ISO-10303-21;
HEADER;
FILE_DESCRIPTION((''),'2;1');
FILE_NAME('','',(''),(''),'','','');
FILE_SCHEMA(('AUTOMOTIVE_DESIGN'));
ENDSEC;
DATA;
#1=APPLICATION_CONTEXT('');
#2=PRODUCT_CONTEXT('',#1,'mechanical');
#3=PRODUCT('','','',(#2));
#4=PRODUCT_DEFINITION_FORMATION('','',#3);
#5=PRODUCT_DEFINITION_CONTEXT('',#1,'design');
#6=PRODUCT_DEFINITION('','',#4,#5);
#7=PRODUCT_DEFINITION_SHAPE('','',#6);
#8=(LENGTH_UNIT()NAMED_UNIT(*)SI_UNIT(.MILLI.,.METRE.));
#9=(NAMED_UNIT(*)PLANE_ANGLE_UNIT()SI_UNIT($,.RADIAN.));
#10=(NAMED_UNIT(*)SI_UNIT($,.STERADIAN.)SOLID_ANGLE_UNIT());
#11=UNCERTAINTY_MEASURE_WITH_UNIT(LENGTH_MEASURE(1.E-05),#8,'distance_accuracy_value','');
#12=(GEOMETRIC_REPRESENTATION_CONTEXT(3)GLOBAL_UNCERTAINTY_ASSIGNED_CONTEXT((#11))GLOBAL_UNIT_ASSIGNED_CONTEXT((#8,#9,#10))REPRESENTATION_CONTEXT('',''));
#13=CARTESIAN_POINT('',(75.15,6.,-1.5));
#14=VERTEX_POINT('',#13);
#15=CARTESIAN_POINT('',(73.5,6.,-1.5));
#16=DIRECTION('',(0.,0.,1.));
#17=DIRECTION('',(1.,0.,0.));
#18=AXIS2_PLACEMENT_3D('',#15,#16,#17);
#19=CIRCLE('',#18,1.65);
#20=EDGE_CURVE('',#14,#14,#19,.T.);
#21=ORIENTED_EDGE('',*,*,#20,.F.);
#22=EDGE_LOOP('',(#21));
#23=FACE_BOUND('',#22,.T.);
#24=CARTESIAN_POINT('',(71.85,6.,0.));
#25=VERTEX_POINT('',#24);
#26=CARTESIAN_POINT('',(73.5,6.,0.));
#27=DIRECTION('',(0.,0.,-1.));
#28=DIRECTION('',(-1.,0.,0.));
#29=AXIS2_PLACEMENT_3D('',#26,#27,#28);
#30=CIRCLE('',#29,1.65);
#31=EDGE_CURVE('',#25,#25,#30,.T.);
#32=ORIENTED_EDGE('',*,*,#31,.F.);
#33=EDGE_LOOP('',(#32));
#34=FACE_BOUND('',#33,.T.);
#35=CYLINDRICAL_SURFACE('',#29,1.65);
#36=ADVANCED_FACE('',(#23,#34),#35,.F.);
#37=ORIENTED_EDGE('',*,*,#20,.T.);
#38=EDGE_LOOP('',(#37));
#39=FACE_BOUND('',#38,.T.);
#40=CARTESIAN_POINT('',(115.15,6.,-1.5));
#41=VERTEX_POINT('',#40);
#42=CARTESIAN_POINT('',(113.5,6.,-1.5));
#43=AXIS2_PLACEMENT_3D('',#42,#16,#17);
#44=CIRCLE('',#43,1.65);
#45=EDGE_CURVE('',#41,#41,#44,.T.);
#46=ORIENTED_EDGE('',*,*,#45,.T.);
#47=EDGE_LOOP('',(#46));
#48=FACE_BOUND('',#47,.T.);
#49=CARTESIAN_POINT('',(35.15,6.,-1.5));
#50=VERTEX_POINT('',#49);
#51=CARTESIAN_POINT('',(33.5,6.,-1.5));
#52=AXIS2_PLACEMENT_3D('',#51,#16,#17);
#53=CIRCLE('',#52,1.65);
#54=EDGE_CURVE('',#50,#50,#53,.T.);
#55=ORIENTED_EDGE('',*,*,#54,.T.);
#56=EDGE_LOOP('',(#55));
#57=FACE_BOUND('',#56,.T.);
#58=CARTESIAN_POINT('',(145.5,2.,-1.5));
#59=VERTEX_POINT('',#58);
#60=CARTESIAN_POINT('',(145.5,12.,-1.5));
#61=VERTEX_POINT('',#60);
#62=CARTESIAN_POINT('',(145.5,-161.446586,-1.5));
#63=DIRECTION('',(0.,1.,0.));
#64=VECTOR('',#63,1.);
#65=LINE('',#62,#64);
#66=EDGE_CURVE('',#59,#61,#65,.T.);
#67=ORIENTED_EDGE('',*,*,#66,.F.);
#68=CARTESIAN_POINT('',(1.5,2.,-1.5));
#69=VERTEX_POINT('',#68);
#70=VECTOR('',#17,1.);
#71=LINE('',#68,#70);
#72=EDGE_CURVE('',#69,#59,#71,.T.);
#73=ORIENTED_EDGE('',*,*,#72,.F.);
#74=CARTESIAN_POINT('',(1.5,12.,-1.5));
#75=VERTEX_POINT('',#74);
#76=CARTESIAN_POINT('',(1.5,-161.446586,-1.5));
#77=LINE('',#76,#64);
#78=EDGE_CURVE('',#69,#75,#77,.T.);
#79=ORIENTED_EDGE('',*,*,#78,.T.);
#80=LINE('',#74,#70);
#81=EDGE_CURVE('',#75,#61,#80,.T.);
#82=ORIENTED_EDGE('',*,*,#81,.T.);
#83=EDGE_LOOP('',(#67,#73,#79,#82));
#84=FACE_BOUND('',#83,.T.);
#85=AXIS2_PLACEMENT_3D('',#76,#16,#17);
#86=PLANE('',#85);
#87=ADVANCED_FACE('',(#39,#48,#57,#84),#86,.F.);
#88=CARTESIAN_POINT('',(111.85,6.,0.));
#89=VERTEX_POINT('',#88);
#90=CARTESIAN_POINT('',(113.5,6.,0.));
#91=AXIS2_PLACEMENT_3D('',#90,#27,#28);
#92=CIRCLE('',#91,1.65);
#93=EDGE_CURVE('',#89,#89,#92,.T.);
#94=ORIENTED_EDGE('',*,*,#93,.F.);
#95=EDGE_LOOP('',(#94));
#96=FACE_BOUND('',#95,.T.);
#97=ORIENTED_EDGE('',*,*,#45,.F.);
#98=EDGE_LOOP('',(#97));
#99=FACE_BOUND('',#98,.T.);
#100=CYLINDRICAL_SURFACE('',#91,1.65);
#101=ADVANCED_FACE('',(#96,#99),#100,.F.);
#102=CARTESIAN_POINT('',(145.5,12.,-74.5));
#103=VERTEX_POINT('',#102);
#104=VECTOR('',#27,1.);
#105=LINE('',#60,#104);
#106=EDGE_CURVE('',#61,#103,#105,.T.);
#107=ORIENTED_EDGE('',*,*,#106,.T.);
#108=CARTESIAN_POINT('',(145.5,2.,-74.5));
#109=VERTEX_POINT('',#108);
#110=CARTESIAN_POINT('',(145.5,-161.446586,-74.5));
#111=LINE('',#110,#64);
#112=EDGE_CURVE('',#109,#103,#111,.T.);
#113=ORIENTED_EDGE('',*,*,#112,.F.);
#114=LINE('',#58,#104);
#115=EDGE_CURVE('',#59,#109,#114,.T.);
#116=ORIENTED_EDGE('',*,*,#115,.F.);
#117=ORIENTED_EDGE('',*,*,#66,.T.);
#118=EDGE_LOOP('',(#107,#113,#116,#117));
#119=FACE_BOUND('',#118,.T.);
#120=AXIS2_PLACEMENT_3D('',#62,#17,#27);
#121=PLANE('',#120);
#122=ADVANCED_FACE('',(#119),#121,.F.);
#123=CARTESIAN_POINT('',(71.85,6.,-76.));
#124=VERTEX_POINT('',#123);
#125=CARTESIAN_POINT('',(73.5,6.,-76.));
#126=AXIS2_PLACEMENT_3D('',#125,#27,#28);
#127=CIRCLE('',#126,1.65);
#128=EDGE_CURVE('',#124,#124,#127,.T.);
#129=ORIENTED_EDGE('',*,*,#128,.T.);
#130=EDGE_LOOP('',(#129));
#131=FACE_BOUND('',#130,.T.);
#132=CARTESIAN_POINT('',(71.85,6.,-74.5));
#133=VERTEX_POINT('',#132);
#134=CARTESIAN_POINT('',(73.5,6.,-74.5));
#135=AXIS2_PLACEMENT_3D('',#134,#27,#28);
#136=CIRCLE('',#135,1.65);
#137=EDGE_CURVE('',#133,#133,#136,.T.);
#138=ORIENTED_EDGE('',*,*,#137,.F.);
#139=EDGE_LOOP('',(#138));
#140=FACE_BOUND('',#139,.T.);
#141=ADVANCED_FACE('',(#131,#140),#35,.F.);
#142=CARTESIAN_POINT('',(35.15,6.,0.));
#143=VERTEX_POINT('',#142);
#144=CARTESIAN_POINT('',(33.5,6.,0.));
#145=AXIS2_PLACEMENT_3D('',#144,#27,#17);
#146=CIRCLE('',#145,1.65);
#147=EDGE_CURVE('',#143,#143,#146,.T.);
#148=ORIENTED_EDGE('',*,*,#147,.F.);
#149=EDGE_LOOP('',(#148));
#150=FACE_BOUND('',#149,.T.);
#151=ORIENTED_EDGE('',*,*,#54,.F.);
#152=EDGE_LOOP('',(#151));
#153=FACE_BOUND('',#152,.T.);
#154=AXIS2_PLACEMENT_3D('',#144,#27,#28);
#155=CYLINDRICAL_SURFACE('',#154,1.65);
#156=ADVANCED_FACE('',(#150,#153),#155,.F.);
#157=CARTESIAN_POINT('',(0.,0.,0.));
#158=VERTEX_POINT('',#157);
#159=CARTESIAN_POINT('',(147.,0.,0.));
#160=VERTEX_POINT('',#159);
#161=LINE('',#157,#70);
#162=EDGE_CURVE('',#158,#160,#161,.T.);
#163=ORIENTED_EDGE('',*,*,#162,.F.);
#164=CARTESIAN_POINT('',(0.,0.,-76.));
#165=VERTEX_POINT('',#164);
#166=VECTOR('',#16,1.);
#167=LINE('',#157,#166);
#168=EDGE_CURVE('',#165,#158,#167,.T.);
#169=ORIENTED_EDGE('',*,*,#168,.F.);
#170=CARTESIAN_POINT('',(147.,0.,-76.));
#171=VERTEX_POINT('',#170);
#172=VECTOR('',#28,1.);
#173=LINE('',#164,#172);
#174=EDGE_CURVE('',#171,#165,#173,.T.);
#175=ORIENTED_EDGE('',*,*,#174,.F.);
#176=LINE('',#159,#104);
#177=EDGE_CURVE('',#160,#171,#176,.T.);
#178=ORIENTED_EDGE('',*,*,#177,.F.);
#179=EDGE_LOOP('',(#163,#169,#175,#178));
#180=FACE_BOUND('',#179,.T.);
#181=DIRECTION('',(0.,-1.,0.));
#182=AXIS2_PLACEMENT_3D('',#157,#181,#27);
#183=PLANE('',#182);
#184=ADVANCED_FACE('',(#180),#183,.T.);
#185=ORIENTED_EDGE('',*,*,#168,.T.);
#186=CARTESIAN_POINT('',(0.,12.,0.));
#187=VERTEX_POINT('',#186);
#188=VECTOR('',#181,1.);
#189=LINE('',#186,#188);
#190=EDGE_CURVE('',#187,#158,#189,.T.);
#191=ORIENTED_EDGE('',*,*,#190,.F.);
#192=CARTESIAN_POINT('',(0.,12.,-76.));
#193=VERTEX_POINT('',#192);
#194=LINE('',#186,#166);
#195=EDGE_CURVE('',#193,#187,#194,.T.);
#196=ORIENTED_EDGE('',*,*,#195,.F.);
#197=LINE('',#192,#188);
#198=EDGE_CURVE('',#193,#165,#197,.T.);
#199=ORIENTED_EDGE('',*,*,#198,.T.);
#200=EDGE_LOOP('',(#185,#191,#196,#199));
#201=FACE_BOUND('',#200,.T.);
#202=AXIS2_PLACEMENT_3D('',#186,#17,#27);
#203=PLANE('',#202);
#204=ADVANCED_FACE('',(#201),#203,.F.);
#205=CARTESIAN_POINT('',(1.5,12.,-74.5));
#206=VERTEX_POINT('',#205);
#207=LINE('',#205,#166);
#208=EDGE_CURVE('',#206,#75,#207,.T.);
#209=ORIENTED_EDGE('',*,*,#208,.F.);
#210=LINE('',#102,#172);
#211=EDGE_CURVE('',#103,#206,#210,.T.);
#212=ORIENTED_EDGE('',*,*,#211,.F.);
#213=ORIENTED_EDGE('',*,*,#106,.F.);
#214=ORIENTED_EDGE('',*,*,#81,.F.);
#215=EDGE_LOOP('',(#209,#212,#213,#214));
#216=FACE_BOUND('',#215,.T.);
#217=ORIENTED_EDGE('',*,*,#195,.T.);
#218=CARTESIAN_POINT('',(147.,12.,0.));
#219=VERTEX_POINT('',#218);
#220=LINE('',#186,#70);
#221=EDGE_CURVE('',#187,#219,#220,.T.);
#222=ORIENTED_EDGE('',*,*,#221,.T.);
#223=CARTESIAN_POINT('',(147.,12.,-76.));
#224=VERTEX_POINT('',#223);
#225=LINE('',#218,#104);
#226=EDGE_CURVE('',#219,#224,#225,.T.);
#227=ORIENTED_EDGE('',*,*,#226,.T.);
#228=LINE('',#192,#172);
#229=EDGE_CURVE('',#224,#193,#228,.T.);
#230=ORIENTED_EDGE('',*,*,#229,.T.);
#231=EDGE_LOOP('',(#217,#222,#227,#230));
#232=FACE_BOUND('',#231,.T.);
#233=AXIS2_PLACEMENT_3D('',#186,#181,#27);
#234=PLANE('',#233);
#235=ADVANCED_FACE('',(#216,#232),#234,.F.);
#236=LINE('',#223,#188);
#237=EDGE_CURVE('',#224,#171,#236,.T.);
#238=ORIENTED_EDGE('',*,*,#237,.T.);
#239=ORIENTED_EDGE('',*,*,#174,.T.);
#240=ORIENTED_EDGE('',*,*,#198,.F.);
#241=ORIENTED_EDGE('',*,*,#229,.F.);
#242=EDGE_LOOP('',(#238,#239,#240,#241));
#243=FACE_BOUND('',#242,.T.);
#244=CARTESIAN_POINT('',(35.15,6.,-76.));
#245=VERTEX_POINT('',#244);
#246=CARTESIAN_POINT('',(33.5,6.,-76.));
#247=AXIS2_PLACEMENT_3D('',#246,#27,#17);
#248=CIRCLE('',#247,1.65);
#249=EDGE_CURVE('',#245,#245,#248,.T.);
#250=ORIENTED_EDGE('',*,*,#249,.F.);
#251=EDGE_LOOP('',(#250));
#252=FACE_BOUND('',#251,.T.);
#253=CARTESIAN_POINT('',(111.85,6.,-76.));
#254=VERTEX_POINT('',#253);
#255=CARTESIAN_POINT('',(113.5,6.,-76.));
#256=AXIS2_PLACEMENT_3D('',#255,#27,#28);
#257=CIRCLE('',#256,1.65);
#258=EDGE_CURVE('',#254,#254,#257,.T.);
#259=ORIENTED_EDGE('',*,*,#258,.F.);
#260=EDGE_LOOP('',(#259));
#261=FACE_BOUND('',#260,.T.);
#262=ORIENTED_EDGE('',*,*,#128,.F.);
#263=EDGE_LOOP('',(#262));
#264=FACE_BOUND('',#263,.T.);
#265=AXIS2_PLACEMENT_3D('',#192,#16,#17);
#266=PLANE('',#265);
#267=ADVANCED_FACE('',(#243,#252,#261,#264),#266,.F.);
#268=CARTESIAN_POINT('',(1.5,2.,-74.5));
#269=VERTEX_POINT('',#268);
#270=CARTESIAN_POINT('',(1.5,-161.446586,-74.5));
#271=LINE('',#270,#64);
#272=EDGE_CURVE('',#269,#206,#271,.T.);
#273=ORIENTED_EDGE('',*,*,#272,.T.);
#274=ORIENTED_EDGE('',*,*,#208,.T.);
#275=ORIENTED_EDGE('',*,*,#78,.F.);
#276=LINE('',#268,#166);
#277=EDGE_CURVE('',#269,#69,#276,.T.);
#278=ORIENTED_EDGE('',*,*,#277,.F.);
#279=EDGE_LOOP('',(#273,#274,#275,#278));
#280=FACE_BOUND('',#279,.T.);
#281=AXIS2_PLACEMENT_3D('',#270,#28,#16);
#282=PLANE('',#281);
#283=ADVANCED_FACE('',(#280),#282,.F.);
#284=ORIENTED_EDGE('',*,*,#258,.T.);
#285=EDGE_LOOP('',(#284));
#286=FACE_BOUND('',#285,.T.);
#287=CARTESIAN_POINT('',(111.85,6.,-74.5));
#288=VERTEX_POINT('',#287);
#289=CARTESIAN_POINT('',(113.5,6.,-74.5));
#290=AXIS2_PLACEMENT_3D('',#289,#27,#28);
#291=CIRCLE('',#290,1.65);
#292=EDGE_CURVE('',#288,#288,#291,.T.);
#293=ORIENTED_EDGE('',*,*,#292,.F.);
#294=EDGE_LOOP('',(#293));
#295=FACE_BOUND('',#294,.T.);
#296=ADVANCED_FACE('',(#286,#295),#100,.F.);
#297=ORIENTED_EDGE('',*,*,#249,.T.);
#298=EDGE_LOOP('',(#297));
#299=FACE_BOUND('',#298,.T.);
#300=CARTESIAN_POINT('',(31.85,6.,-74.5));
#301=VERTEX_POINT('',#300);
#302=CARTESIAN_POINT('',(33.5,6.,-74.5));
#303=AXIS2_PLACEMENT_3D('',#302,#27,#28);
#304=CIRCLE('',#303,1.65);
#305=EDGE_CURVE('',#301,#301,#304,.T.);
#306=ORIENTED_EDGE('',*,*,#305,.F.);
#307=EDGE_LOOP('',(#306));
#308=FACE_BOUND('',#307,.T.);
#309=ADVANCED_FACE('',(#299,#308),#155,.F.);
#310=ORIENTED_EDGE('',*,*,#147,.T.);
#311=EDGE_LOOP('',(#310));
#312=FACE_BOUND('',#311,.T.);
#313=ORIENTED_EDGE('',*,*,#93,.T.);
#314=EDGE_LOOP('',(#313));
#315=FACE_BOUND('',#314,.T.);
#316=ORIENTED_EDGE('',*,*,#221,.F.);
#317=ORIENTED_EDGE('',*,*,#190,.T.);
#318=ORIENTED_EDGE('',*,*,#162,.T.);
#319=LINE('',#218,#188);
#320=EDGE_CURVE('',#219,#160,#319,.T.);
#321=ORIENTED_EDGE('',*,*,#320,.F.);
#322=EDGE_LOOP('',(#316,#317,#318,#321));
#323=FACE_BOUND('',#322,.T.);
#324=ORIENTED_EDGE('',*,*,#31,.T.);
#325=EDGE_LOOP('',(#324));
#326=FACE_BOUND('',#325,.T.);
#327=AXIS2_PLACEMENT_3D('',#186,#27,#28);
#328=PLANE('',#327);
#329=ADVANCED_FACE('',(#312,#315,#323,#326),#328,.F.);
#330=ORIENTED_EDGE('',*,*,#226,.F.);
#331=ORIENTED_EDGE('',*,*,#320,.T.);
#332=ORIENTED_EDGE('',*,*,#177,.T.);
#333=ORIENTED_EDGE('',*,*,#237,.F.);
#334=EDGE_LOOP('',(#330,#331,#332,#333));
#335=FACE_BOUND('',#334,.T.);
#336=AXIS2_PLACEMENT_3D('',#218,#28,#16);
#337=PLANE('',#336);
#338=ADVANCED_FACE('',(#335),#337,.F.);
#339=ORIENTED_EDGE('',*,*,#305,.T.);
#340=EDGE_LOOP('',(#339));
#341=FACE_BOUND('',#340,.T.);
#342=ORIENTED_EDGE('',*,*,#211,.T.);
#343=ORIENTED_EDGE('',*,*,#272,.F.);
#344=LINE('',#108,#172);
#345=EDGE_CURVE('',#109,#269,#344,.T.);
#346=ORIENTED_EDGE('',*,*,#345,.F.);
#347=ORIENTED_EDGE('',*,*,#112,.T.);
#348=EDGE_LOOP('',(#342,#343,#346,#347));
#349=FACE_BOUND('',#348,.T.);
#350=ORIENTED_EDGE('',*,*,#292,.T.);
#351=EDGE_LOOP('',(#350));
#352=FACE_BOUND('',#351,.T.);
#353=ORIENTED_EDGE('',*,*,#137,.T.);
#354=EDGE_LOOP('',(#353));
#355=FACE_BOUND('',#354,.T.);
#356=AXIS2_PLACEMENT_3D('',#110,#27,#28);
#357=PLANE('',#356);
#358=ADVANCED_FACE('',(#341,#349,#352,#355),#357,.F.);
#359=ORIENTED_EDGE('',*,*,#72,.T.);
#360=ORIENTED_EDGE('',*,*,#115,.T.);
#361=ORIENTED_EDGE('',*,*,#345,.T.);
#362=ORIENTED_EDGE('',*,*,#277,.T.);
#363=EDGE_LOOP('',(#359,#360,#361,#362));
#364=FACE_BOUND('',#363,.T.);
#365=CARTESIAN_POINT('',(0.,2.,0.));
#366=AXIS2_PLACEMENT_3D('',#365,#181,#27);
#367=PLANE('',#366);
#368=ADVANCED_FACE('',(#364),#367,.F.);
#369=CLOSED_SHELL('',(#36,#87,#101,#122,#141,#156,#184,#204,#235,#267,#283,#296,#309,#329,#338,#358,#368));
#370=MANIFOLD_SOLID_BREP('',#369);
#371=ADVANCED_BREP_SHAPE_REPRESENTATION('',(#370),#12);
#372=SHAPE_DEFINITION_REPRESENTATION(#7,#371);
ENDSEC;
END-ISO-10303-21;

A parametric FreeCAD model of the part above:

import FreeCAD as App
import Part
import Sketcher
Q = App.Units.Quantity


def add_polygon(sketch, points):
    """Adds a closed chain of lines whose ends are joined by coincident constraints."""
    first, n = sketch.GeometryCount, len(points)
    for a, b in zip(points, points[1:] + points[:1]):
        sketch.addGeometry(Part.LineSegment(App.Vector(*a, 0), App.Vector(*b, 0)), False)
    for i in range(n):
        sketch.addConstraint(Sketcher.Constraint("Coincident", first + i, 2, first + (i + 1) % n, 1))

doc = App.newDocument("Part")
body = doc.addObject("PartDesign::Body", "Body")

sketch1 = doc.addObject("Sketcher::SketchObject", "Sketch")
body.addObject(sketch1)
sketch1.AttachmentSupport = (doc.XZ_Plane, [""])
sketch1.MapMode = "FlatFace"
add_polygon(sketch1, [(0, -76), (0, 0), (147, 0), (147, -76)])
sketch1.addConstraint(Sketcher.Constraint("Vertical", 0))
sketch1.addConstraint(Sketcher.Constraint("Horizontal", 1))
sketch1.addConstraint(Sketcher.Constraint("Vertical", 2))
sketch1.addConstraint(Sketcher.Constraint("Horizontal", 3))
sketch1.addConstraint(Sketcher.Constraint("Coincident", 0, 2, -1, 1))
sketch1.addConstraint(Sketcher.Constraint("DistanceX", 1, 1, 1, 2, Q("147 mm")))
sketch1.addConstraint(Sketcher.Constraint("DistanceY", 0, 1, 0, 2, Q("76 mm")))
pad1 = doc.addObject("PartDesign::Pad", "Pad")
body.addObject(pad1)
pad1.Profile = sketch1
pad1.Length = 12
pad1.Reversed = True

sketch2 = doc.addObject("Sketcher::SketchObject", "Sketch001")
body.addObject(sketch2)
sketch2.AttachmentSupport = (doc.XZ_Plane, [""])
sketch2.MapMode = "FlatFace"
sketch2.AttachmentOffset = App.Placement(App.Vector(0, 0, -12), App.Rotation())
add_polygon(sketch2, [(1.5, -74.5), (1.5, -1.5), (145.5, -1.5), (145.5, -74.5)])
sketch2.addConstraint(Sketcher.Constraint("Vertical", 0))
sketch2.addConstraint(Sketcher.Constraint("Horizontal", 1))
sketch2.addConstraint(Sketcher.Constraint("Vertical", 2))
sketch2.addConstraint(Sketcher.Constraint("Horizontal", 3))
sketch2.addConstraint(Sketcher.Constraint("DistanceX", 1, 1, 1, 2, Q("144 mm")))
sketch2.addConstraint(Sketcher.Constraint("DistanceY", 0, 1, 0, 2, Q("73 mm")))
sketch2.addConstraint(Sketcher.Constraint("DistanceX", -1, 1, 0, 2, Q("1.5 mm")))
sketch2.addConstraint(Sketcher.Constraint("DistanceY", 0, 2, -1, 1, Q("1.5 mm")))
pocket1 = doc.addObject("PartDesign::Pocket", "Pocket")
body.addObject(pocket1)
pocket1.Profile = sketch2
pocket1.Length = 10
pocket1.Reversed = True

sketch3 = doc.addObject("Sketcher::SketchObject", "Sketch002")
body.addObject(sketch3)
sketch3.AttachmentSupport = (doc.XY_Plane, [""])
sketch3.MapMode = "FlatFace"
sketch3.AttachmentOffset = App.Placement(App.Vector(0, 0, -76), App.Rotation())
sketch3.addGeometry(Part.Circle(App.Vector(113.5, 6, 0), App.Vector(0, 0, 1), 1.65), False)
sketch3.addGeometry(Part.Circle(App.Vector(33.5, 6, 0), App.Vector(0, 0, 1), 1.65), False)
sketch3.addGeometry(Part.Circle(App.Vector(73.5, 6, 0), App.Vector(0, 0, 1), 1.65), False)
sketch3.addConstraint(Sketcher.Constraint("Equal", 0, 1))
sketch3.addConstraint(Sketcher.Constraint("Equal", 1, 2))
sketch3.addConstraint(Sketcher.Constraint("Horizontal", 0, 3, 1, 3))
sketch3.addConstraint(Sketcher.Constraint("Horizontal", 1, 3, 2, 3))
sketch3.addConstraint(Sketcher.Constraint("Diameter", 0, Q("3.3 mm")))
sketch3.addConstraint(Sketcher.Constraint("DistanceY", -1, 1, 0, 3, Q("6 mm")))
sketch3.addConstraint(Sketcher.Constraint("DistanceX", 1, 3, 0, 3, Q("80 mm")))
sketch3.addConstraint(Sketcher.Constraint("DistanceX", 2, 3, 0, 3, Q("40 mm")))
sketch3.addConstraint(Sketcher.Constraint("DistanceX", -1, 1, 0, 3, Q("113.5 mm")))
pocket2 = doc.addObject("PartDesign::Pocket", "Pocket001")
body.addObject(pocket2)
pocket2.Profile = sketch3
pocket2.Type = "ThroughAll"
pocket2.Reversed = True

doc.recompute()
